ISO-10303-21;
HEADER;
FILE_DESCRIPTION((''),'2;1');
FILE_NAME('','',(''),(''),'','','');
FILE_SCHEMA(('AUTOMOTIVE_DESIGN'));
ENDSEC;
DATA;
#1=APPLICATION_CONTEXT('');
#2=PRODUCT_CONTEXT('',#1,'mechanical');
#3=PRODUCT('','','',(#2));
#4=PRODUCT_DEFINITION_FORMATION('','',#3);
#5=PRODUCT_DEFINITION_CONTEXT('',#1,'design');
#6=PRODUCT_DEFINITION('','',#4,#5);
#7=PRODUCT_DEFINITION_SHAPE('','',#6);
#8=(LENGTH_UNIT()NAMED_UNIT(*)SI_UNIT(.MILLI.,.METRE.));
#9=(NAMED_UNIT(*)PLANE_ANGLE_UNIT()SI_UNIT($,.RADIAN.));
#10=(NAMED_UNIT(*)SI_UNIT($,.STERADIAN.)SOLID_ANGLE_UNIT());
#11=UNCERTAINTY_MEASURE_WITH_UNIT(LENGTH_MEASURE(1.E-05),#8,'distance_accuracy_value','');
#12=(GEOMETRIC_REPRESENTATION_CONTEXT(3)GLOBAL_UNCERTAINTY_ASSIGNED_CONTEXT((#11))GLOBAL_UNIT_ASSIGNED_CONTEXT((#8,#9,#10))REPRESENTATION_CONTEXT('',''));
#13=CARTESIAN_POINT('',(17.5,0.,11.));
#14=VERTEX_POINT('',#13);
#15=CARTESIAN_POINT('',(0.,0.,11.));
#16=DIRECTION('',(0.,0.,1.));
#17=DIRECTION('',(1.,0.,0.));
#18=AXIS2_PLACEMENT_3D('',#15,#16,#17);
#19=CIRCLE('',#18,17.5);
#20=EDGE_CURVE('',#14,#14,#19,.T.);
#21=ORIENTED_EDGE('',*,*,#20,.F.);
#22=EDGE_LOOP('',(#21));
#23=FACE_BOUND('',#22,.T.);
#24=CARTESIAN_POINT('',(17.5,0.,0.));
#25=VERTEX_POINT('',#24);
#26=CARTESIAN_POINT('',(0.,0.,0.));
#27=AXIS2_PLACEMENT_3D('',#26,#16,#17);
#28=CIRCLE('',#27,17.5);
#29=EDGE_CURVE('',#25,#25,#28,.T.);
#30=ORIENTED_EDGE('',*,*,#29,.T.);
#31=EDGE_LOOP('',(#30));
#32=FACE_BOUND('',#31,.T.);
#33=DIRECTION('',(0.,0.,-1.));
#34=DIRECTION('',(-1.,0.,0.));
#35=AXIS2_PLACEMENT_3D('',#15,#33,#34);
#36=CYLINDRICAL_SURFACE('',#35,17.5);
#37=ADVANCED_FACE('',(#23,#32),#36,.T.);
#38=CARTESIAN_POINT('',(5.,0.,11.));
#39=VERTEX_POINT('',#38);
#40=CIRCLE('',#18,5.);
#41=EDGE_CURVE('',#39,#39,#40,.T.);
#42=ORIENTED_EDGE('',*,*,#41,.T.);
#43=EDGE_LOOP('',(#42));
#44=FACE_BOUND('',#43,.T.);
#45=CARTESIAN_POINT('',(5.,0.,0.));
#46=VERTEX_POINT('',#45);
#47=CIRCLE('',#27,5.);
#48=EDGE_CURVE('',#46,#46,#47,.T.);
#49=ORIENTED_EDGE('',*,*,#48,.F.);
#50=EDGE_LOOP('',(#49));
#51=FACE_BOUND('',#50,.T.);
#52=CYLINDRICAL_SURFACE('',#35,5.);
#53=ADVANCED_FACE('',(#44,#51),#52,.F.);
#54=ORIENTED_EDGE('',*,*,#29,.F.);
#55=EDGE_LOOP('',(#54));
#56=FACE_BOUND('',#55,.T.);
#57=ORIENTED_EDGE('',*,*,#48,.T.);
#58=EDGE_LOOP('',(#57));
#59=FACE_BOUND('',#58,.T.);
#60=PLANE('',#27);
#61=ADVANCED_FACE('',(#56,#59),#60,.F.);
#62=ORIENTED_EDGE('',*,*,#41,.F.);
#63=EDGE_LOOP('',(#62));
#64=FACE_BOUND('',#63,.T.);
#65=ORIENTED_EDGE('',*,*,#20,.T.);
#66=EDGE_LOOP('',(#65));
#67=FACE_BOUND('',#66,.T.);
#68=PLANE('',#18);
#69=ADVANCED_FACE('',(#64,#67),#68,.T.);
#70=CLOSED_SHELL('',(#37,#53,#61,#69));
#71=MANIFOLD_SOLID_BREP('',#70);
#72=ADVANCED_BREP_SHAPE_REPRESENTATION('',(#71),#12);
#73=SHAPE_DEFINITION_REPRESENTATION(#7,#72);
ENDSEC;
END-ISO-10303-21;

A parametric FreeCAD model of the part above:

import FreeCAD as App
import Part
import Sketcher

doc = App.newDocument("Part")
body = doc.addObject("PartDesign::Body", "Body")

sketch1 = body.newObject("Sketcher::SketchObject", "Sketch")
sketch1.AttachmentSupport = (doc.getObject("XY_Plane"), [""])
sketch1.MapMode = "FlatFace"
sketch1.addGeometry(Part.Circle(App.Vector(0, 0, 0), App.Vector(0, 0, 1), 18), False)
sketch1.addGeometry(Part.Circle(App.Vector(0, 0, 0), App.Vector(0, 0, 1), 5), False)
sketch1.addConstraint(Sketcher.Constraint("Coincident", 0, 3, -1, 1))
sketch1.addConstraint(Sketcher.Constraint("Coincident", 1, 3, -1, 1))
sketch1.addConstraint(Sketcher.Constraint("Diameter", 0, 35.0))
sketch1.addConstraint(Sketcher.Constraint("Diameter", 1, 10.0))
pad1 = body.newObject("PartDesign::Pad", "Pad")
pad1.Profile = sketch1
pad1.Length = 11

doc.recompute()
